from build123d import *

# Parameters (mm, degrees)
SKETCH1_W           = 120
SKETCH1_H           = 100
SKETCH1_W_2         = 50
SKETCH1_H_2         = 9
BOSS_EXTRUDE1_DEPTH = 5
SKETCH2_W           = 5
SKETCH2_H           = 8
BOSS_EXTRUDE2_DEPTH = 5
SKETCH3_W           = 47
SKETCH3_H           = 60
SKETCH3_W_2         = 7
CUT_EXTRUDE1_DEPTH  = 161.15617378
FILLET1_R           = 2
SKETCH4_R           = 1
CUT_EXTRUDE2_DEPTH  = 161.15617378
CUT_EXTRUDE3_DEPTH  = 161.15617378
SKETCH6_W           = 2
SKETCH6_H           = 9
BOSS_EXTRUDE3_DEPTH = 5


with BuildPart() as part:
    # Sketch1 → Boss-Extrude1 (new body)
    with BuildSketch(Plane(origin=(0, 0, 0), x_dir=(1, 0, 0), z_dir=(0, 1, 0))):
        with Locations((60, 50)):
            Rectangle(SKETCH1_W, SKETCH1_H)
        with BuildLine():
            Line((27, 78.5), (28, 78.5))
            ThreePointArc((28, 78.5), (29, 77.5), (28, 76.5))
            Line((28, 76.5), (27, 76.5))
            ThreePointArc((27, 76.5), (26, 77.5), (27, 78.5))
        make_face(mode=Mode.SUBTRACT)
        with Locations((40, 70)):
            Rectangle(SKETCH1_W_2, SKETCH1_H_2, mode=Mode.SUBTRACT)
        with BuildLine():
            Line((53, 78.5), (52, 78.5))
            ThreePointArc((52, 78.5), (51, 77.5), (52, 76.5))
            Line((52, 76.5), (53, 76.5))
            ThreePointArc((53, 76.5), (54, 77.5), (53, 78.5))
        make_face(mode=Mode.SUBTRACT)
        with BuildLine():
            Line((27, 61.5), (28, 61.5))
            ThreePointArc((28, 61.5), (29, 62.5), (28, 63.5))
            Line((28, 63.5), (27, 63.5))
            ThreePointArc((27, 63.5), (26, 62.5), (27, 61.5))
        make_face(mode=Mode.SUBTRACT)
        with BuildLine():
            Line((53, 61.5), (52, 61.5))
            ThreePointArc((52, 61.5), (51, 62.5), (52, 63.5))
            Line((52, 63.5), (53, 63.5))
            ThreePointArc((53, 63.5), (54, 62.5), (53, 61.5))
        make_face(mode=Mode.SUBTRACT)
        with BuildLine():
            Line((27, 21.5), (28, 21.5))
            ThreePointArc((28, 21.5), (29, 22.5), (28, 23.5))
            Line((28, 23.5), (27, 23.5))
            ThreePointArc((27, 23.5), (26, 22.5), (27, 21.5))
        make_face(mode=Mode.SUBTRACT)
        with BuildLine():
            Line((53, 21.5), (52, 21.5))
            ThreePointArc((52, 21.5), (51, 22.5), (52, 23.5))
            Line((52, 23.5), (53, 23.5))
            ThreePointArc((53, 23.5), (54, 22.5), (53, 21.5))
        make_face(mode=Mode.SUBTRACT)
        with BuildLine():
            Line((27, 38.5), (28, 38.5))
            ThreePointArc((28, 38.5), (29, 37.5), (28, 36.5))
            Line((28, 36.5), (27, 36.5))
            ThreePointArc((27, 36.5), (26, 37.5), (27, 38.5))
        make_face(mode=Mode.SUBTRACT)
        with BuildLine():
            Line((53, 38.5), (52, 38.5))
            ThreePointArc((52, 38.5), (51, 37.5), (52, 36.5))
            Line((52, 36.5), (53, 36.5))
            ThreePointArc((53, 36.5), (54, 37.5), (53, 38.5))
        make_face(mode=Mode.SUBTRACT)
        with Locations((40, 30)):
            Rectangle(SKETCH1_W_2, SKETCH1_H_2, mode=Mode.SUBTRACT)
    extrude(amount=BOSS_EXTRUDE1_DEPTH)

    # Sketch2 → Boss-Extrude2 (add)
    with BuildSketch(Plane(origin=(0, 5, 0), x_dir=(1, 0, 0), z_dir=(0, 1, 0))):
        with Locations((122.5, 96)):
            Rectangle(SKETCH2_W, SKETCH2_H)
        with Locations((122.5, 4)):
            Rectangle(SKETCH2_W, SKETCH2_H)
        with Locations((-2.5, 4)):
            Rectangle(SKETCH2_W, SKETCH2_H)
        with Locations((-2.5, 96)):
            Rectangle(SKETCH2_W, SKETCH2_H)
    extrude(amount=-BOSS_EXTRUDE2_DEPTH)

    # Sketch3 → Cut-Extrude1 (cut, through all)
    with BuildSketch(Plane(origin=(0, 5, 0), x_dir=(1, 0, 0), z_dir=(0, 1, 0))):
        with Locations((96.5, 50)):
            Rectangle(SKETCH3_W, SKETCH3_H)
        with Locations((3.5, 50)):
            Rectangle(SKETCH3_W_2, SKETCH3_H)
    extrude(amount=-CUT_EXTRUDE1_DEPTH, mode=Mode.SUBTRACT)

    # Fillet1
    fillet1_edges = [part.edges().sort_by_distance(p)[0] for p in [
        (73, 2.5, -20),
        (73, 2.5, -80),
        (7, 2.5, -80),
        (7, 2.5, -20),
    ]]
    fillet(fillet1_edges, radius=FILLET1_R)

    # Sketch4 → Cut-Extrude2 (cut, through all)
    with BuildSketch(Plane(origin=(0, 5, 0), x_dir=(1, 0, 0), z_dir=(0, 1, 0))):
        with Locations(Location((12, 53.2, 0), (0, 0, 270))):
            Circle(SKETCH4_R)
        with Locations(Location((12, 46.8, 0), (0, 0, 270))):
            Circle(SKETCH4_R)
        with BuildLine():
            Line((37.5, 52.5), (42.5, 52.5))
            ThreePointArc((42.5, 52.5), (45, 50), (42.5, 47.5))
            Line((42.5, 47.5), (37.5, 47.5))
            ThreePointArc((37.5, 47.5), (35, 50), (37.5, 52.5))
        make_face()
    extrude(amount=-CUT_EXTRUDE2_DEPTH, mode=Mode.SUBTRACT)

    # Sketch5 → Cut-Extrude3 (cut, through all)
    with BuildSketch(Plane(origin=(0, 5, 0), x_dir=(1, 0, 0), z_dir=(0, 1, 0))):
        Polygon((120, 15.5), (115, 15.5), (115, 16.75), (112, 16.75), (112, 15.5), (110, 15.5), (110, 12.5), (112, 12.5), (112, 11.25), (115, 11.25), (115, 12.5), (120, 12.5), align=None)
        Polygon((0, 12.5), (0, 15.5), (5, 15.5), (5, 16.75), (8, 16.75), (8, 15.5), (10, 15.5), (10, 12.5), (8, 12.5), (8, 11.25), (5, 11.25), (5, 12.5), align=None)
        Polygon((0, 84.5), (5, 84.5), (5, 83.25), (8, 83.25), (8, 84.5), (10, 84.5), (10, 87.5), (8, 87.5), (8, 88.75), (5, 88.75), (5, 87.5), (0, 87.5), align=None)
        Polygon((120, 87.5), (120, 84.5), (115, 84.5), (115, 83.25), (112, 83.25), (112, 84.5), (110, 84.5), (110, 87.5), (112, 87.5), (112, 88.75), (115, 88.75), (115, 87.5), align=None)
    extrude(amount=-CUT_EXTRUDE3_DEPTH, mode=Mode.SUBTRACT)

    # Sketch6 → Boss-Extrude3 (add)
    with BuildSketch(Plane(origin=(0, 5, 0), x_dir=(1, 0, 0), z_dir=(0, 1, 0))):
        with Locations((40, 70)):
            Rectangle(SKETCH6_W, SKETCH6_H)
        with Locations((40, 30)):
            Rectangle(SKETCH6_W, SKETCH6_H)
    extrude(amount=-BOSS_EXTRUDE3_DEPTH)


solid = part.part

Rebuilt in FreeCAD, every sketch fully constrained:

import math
import FreeCAD as App
import Part
import Sketcher
from FreeCAD import Vector


def edges_at(feature, points):
    """Names of the edges that pass closest to the given points."""
    edges = feature.Shape.Edges
    near = lambda p: min(range(len(edges)), key=lambda i: edges[i].distToShape(Part.Vertex(*p))[0])
    return sorted({f"Edge{near(p) + 1}" for p in points})


def add_polygon(sketch, points):
    """Adds a closed chain of lines whose ends are joined by coincident constraints."""
    first, n = sketch.GeometryCount, len(points)
    for a, b in zip(points, points[1:] + points[:1]):
        sketch.addGeometry(Part.LineSegment(App.Vector(*a, 0), App.Vector(*b, 0)), False)
    for i in range(n):
        sketch.addConstraint(Sketcher.Constraint("Coincident", first + i, 2, first + (i + 1) % n, 1))

doc = App.newDocument("Part")
params = doc.addObject("Spreadsheet::Sheet", "Params")
for row, (alias, value) in enumerate([
    ("sketch1_radius", "1 mm"),
    ("sketch1_width", "120 mm"),
    ("sketch1_width2", "1 mm"),
    ("sketch1_width3", "50 mm"),
    ("sketch1_height", "100 mm"),
    ("pad1_length", "5 mm"),
    ("sketch2_width", "5 mm"),
    ("sketch2_height", "8 mm"),
    ("pad2_length", "5 mm"),
    ("sketch3_width", "47 mm"),
    ("sketch3_width2", "7 mm"),
    ("sketch3_height", "60 mm"),
    ("fillet_radius", "2 mm"),
    ("sketch4_diameter", "2 mm"),
    ("sketch4_radius", "2.5 mm"),
    ("sketch4_width", "5 mm"),
    ("sketch5_width", "5 mm"),
    ("sketch5_width2", "3 mm"),
    ("sketch5_width3", "2 mm"),
    ("sketch5_height", "1.25 mm"),
    ("sketch6_width", "2 mm"),
    ("sketch6_height", "9 mm"),
    ("pad3_length", "5 mm"),
], start=1):
    params.set(f"A{row}", alias)
    params.set(f"B{row}", "=" + value)
    params.setAlias(f"B{row}", alias)

body = doc.addObject("PartDesign::Body", "Body")

# Sketch on XZ plane
sketch1 = doc.addObject("Sketcher::SketchObject", "Sketch")
body.addObject(sketch1)
sketch1.AttachmentSupport = (doc.XZ_Plane, [""])
sketch1.MapMode = "FlatFace"
add_polygon(sketch1, [(0, -100), (0, 0), (120, 0), (120, -100)])  # lines 0-3
sketch1.addGeometry(Part.LineSegment(Vector(28, -21.5, 0), Vector(27, -21.5, 0)), False)  # 4
sketch1.addGeometry(Part.ArcOfCircle(Part.Circle(Vector(27, -22.5, 0), Vector(0, 0, 1), 1), math.radians(90), math.radians(270)), False)  # 5
sketch1.addGeometry(Part.LineSegment(Vector(27, -23.5, 0), Vector(28, -23.5, 0)), False)  # 6
sketch1.addGeometry(Part.ArcOfCircle(Part.Circle(Vector(28, -22.5, 0), Vector(0, 0, 1), 1), math.radians(-90), math.radians(90)), False)  # 7
sketch1.addGeometry(Part.ArcOfCircle(Part.Circle(Vector(27, -37.5, 0), Vector(0, 0, 1), 1), math.radians(90), math.radians(270)), False)  # 8
sketch1.addGeometry(Part.LineSegment(Vector(27, -38.5, 0), Vector(28, -38.5, 0)), False)  # 9
sketch1.addGeometry(Part.ArcOfCircle(Part.Circle(Vector(28, -37.5, 0), Vector(0, 0, 1), 1), math.radians(-90), math.radians(90)), False)  # 10
sketch1.addGeometry(Part.LineSegment(Vector(28, -36.5, 0), Vector(27, -36.5, 0)), False)  # 11
add_polygon(sketch1, [(65, -25.5), (15, -25.5), (15, -34.5), (65, -34.5)])  # lines 12-15
sketch1.addGeometry(Part.ArcOfCircle(Part.Circle(Vector(53, -22.5, 0), Vector(0, 0, 1), 1), math.radians(-90), math.radians(90)), False)  # 16
sketch1.addGeometry(Part.LineSegment(Vector(53, -21.5, 0), Vector(52, -21.5, 0)), False)  # 17
sketch1.addGeometry(Part.ArcOfCircle(Part.Circle(Vector(52, -22.5, 0), Vector(0, 0, 1), 1), math.radians(90), math.radians(270)), False)  # 18
sketch1.addGeometry(Part.LineSegment(Vector(52, -23.5, 0), Vector(53, -23.5, 0)), False)  # 19
sketch1.addGeometry(Part.LineSegment(Vector(52, -38.5, 0), Vector(53, -38.5, 0)), False)  # 20
sketch1.addGeometry(Part.ArcOfCircle(Part.Circle(Vector(53, -37.5, 0), Vector(0, 0, 1), 1), math.radians(-90), math.radians(90)), False)  # 21
sketch1.addGeometry(Part.LineSegment(Vector(53, -36.5, 0), Vector(52, -36.5, 0)), False)  # 22
sketch1.addGeometry(Part.ArcOfCircle(Part.Circle(Vector(52, -37.5, 0), Vector(0, 0, 1), 1), math.radians(90), math.radians(270)), False)  # 23
sketch1.addGeometry(Part.LineSegment(Vector(28, -61.5, 0), Vector(27, -61.5, 0)), False)  # 24
sketch1.addGeometry(Part.ArcOfCircle(Part.Circle(Vector(27, -62.5, 0), Vector(0, 0, 1), 1), math.radians(90), math.radians(270)), False)  # 25
sketch1.addGeometry(Part.LineSegment(Vector(27, -63.5, 0), Vector(28, -63.5, 0)), False)  # 26
sketch1.addGeometry(Part.ArcOfCircle(Part.Circle(Vector(28, -62.5, 0), Vector(0, 0, 1), 1), math.radians(-90), math.radians(90)), False)  # 27
sketch1.addGeometry(Part.ArcOfCircle(Part.Circle(Vector(27, -77.5, 0), Vector(0, 0, 1), 1), math.radians(90), math.radians(270)), False)  # 28
sketch1.addGeometry(Part.LineSegment(Vector(27, -78.5, 0), Vector(28, -78.5, 0)), False)  # 29
sketch1.addGeometry(Part.ArcOfCircle(Part.Circle(Vector(28, -77.5, 0), Vector(0, 0, 1), 1), math.radians(-90), math.radians(90)), False)  # 30
sketch1.addGeometry(Part.LineSegment(Vector(28, -76.5, 0), Vector(27, -76.5, 0)), False)  # 31
sketch1.addGeometry(Part.ArcOfCircle(Part.Circle(Vector(53, -62.5, 0), Vector(0, 0, 1), 1), math.radians(-90), math.radians(90)), False)  # 32
sketch1.addGeometry(Part.LineSegment(Vector(53, -61.5, 0), Vector(52, -61.5, 0)), False)  # 33
sketch1.addGeometry(Part.ArcOfCircle(Part.Circle(Vector(52, -62.5, 0), Vector(0, 0, 1), 1), math.radians(90), math.radians(270)), False)  # 34
sketch1.addGeometry(Part.LineSegment(Vector(52, -63.5, 0), Vector(53, -63.5, 0)), False)  # 35
add_polygon(sketch1, [(65, -65.5), (15, -65.5), (15, -74.5), (65, -74.5)])  # lines 36-39
sketch1.addGeometry(Part.LineSegment(Vector(52, -78.5, 0), Vector(53, -78.5, 0)), False)  # 40
sketch1.addGeometry(Part.ArcOfCircle(Part.Circle(Vector(53, -77.5, 0), Vector(0, 0, 1), 1), math.radians(-90), math.radians(90)), False)  # 41
sketch1.addGeometry(Part.LineSegment(Vector(53, -76.5, 0), Vector(52, -76.5, 0)), False)  # 42
sketch1.addGeometry(Part.ArcOfCircle(Part.Circle(Vector(52, -77.5, 0), Vector(0, 0, 1), 1), math.radians(90), math.radians(270)), False)  # 43
sketch1.addConstraint([
    Sketcher.Constraint("Tangent", 4, 2, 5, 1),
    Sketcher.Constraint("Tangent", 5, 2, 6, 1),
    Sketcher.Constraint("Tangent", 6, 2, 7, 1),
    Sketcher.Constraint("Tangent", 7, 2, 4, 1),
    Sketcher.Constraint("Tangent", 8, 2, 9, 1),
    Sketcher.Constraint("Tangent", 9, 2, 10, 1),
    Sketcher.Constraint("Tangent", 10, 2, 11, 1),
    Sketcher.Constraint("Tangent", 11, 2, 8, 1),
    Sketcher.Constraint("Tangent", 16, 2, 17, 1),
    Sketcher.Constraint("Tangent", 17, 2, 18, 1),
    Sketcher.Constraint("Tangent", 18, 2, 19, 1),
    Sketcher.Constraint("Tangent", 19, 2, 16, 1),
    Sketcher.Constraint("Tangent", 20, 2, 21, 1),
    Sketcher.Constraint("Tangent", 21, 2, 22, 1),
    Sketcher.Constraint("Tangent", 22, 2, 23, 1),
    Sketcher.Constraint("Tangent", 23, 2, 20, 1),
    Sketcher.Constraint("Tangent", 24, 2, 25, 1),
    Sketcher.Constraint("Tangent", 25, 2, 26, 1),
    Sketcher.Constraint("Tangent", 26, 2, 27, 1),
    Sketcher.Constraint("Tangent", 27, 2, 24, 1),
    Sketcher.Constraint("Tangent", 28, 2, 29, 1),
    Sketcher.Constraint("Tangent", 29, 2, 30, 1),
    Sketcher.Constraint("Tangent", 30, 2, 31, 1),
    Sketcher.Constraint("Tangent", 31, 2, 28, 1),
    Sketcher.Constraint("Tangent", 32, 2, 33, 1),
    Sketcher.Constraint("Tangent", 33, 2, 34, 1),
    Sketcher.Constraint("Tangent", 34, 2, 35, 1),
    Sketcher.Constraint("Tangent", 35, 2, 32, 1),
    Sketcher.Constraint("Tangent", 40, 2, 41, 1),
    Sketcher.Constraint("Tangent", 41, 2, 42, 1),
    Sketcher.Constraint("Tangent", 42, 2, 43, 1),
    Sketcher.Constraint("Tangent", 43, 2, 40, 1),
    Sketcher.Constraint("Vertical", 0),
    Sketcher.Constraint("Horizontal", 1),
    Sketcher.Constraint("Vertical", 2),
    Sketcher.Constraint("Horizontal", 3),
    Sketcher.Constraint("Horizontal", 4),
    Sketcher.Constraint("Horizontal", 6),
    Sketcher.Constraint("Horizontal", 9),
    Sketcher.Constraint("Horizontal", 11),
    Sketcher.Constraint("Horizontal", 12),
    Sketcher.Constraint("Vertical", 13),
    Sketcher.Constraint("Horizontal", 14),
    Sketcher.Constraint("Vertical", 15),
    Sketcher.Constraint("Horizontal", 17),
    Sketcher.Constraint("Horizontal", 19),
    Sketcher.Constraint("Horizontal", 20),
    Sketcher.Constraint("Horizontal", 22),
    Sketcher.Constraint("Horizontal", 24),
    Sketcher.Constraint("Horizontal", 26),
    Sketcher.Constraint("Horizontal", 29),
    Sketcher.Constraint("Horizontal", 31),
    Sketcher.Constraint("Horizontal", 33),
    Sketcher.Constraint("Horizontal", 35),
    Sketcher.Constraint("Horizontal", 36),
    Sketcher.Constraint("Vertical", 37),
    Sketcher.Constraint("Horizontal", 38),
    Sketcher.Constraint("Vertical", 39),
    Sketcher.Constraint("Horizontal", 40),
    Sketcher.Constraint("Horizontal", 42),
    Sketcher.Constraint("Coincident", 0, 2, -1, 1),
    Sketcher.Constraint("Equal", 7, 8),
    Sketcher.Constraint("Equal", 10, 16),
    Sketcher.Constraint("Equal", 18, 21),
    Sketcher.Constraint("Equal", 23, 25),
    Sketcher.Constraint("Equal", 27, 28),
    Sketcher.Constraint("Equal", 30, 32),
    Sketcher.Constraint("Equal", 34, 41),
    Sketcher.Constraint("Horizontal", 7, 3, 16, 3),
    Sketcher.Constraint("Horizontal", 10, 3, 21, 3),
    Sketcher.Constraint("Horizontal", 27, 3, 32, 3),
    Sketcher.Constraint("Horizontal", 30, 3, 41, 3),
    Sketcher.Constraint("Vertical", 5, 3, 8, 3),
    Sketcher.Constraint("Vertical", 7, 3, 10, 3),
    Sketcher.Constraint("Vertical", 16, 3, 21, 3),
    Sketcher.Constraint("Vertical", 18, 3, 23, 3),
    Sketcher.Constraint("Vertical", 8, 3, 25, 3),
    Sketcher.Constraint("Vertical", 10, 3, 27, 3),
    Sketcher.Constraint("Vertical", 25, 3, 28, 3),
    Sketcher.Constraint("Vertical", 27, 3, 30, 3),
    Sketcher.Constraint("Vertical", 21, 3, 32, 3),
    Sketcher.Constraint("Vertical", 23, 3, 34, 3),
    Sketcher.Constraint("Vertical", 32, 3, 41, 3),
    Sketcher.Constraint("Vertical", 34, 3, 43, 3),
    Sketcher.Constraint("Vertical", 13, 2, 36, 2),
    Sketcher.Constraint("Vertical", 15, 2, 38, 2),
    Sketcher.Constraint("Equal", 11, 17),
    Sketcher.Constraint("Equal", 15, 37),
    Sketcher.Constraint("Radius", 5, 1.0),
    Sketcher.Constraint("DistanceX", 1, 1, 1, 2, 120.0),
    Sketcher.Constraint("DistanceX", 4, 2, 4, 1, 1.0),
    Sketcher.Constraint("DistanceX", 12, 2, 12, 1, 50.0),
    Sketcher.Constraint("DistanceY", 0, 1, 0, 2, 100.0),
    Sketcher.Constraint("DistanceY", 13, 2, 13, 1, 9.0),
    Sketcher.Constraint("DistanceX", -1, 1, 5, 3, 27.0),
    Sketcher.Constraint("DistanceX", -1, 1, 16, 3, 53.0),
    Sketcher.Constraint("DistanceX", -1, 1, 12, 2, 15.0),
    Sketcher.Constraint("DistanceY", 8, 3, 5, 3, 15.0),
    Sketcher.Constraint("DistanceY", 25, 3, 8, 3, 25.0),
    Sketcher.Constraint("DistanceY", 28, 3, 25, 3, 15.0),
    Sketcher.Constraint("DistanceY", 12, 2, 5, 2, 2.0),
    Sketcher.Constraint("DistanceY", 36, 2, 25, 2, 2.0),
    Sketcher.Constraint("DistanceY", 5, 3, -1, 1, 22.5),
])
sketch1.setExpression("Constraints[100]", "Params.sketch1_radius")
sketch1.setExpression("Constraints[101]", "Params.sketch1_width")
sketch1.setExpression("Constraints[102]", "Params.sketch1_width2")
sketch1.setExpression("Constraints[103]", "Params.sketch1_width3")
sketch1.setExpression("Constraints[104]", "Params.sketch1_height")
pad1 = doc.addObject("PartDesign::Pad", "Pad")
body.addObject(pad1)
pad1.Profile = sketch1
pad1.setExpression("Length", "Params.pad1_length")
pad1.Reversed = True

# Sketch on XZ plane
sketch2 = doc.addObject("Sketcher::SketchObject", "Sketch001")
body.addObject(sketch2)
sketch2.AttachmentSupport = (doc.XZ_Plane, [""])
sketch2.MapMode = "FlatFace"
sketch2.AttachmentOffset = App.Placement(Vector(0, 0, -5), App.Rotation())
add_polygon(sketch2, [(120, -100), (120, -92), (125, -92), (125, -100)])  # lines 0-3
add_polygon(sketch2, [(120, -8), (120, 0), (125, 0), (125, -8)])  # lines 4-7
add_polygon(sketch2, [(-5, -8), (-5, 0), (0, 0), (0, -8)])  # lines 8-11
add_polygon(sketch2, [(-5, -100), (-5, -92), (0, -92), (0, -100)])  # lines 12-15
sketch2.addConstraint([
    Sketcher.Constraint("Vertical", 0),
    Sketcher.Constraint("Horizontal", 1),
    Sketcher.Constraint("Vertical", 2),
    Sketcher.Constraint("Horizontal", 3),
    Sketcher.Constraint("Vertical", 4),
    Sketcher.Constraint("Horizontal", 5),
    Sketcher.Constraint("Vertical", 6),
    Sketcher.Constraint("Horizontal", 7),
    Sketcher.Constraint("Vertical", 8),
    Sketcher.Constraint("Horizontal", 9),
    Sketcher.Constraint("Vertical", 10),
    Sketcher.Constraint("Horizontal", 11),
    Sketcher.Constraint("Vertical", 12),
    Sketcher.Constraint("Horizontal", 13),
    Sketcher.Constraint("Vertical", 14),
    Sketcher.Constraint("Horizontal", 15),
    Sketcher.Constraint("Coincident", 9, 2, -1, 1),
    Sketcher.Constraint("PointOnObject", 4, 2, -1),
    Sketcher.Constraint("PointOnObject", 13, 2, -2),
    Sketcher.Constraint("Horizontal", 7, 2, 10, 2),
    Sketcher.Constraint("Horizontal", 1, 2, 12, 2),
    Sketcher.Constraint("Horizontal", 3, 2, 14, 2),
    Sketcher.Constraint("Vertical", 3, 2, 4, 2),
    Sketcher.Constraint("Vertical", 2, 2, 5, 2),
    Sketcher.Constraint("Vertical", 11, 2, 12, 2),
    Sketcher.Constraint("Equal", 7, 9),
    Sketcher.Constraint("Equal", 2, 4),
    Sketcher.Constraint("DistanceX", 1, 1, 1, 2, 5.0),
    Sketcher.Constraint("DistanceY", 0, 1, 0, 2, 8.0),
    Sketcher.Constraint("DistanceX", -1, 1, 0, 2, 120.0),
    Sketcher.Constraint("DistanceY", 0, 2, -1, 1, 92.0),
])
sketch2.setExpression("Constraints[43]", "Params.sketch2_width")
sketch2.setExpression("Constraints[44]", "Params.sketch2_height")
pad2 = doc.addObject("PartDesign::Pad", "Pad001")
body.addObject(pad2)
pad2.Profile = sketch2
pad2.setExpression("Length", "Params.pad2_length")

# Sketch on XZ plane
sketch3 = doc.addObject("Sketcher::SketchObject", "Sketch002")
body.addObject(sketch3)
sketch3.AttachmentSupport = (doc.XZ_Plane, [""])
sketch3.MapMode = "FlatFace"
sketch3.AttachmentOffset = App.Placement(Vector(0, 0, -5), App.Rotation())
add_polygon(sketch3, [(73, -80), (73, -20), (120, -20), (120, -80)])  # lines 0-3
add_polygon(sketch3, [(0, -80), (0, -20), (7, -20), (7, -80)])  # lines 4-7
sketch3.addConstraint([
    Sketcher.Constraint("Vertical", 0),
    Sketcher.Constraint("Horizontal", 1),
    Sketcher.Constraint("Vertical", 2),
    Sketcher.Constraint("Horizontal", 3),
    Sketcher.Constraint("Vertical", 4),
    Sketcher.Constraint("Horizontal", 5),
    Sketcher.Constraint("Vertical", 6),
    Sketcher.Constraint("Horizontal", 7),
    Sketcher.Constraint("PointOnObject", 4, 2, -2),
    Sketcher.Constraint("Horizontal", 1, 2, 4, 2),
    Sketcher.Constraint("Horizontal", 3, 2, 6, 2),
    Sketcher.Constraint("DistanceX", 1, 1, 1, 2, 47.0),
    Sketcher.Constraint("DistanceX", 5, 1, 5, 2, 7.0),
    Sketcher.Constraint("DistanceY", 0, 1, 0, 2, 60.0),
    Sketcher.Constraint("DistanceX", -1, 1, 0, 2, 73.0),
    Sketcher.Constraint("DistanceY", 0, 2, -1, 1, 20.0),
])
sketch3.setExpression("Constraints[19]", "Params.sketch3_width")
sketch3.setExpression("Constraints[20]", "Params.sketch3_width2")
sketch3.setExpression("Constraints[21]", "Params.sketch3_height")
pocket1 = doc.addObject("PartDesign::Pocket", "Pocket")
body.addObject(pocket1)
pocket1.Profile = sketch3
pocket1.Type = "ThroughAll"
pocket1.Reversed = True
doc.recompute()

fillet = doc.addObject("PartDesign::Fillet", "Fillet")
body.addObject(fillet)
fillet.Base = (pocket1, edges_at(pocket1, [
    (73, 2.5, -20),
    (73, 2.5, -80),
    (7, 2.5, -80),
    (7, 2.5, -20),
]))
fillet.setExpression("Radius", "Params.fillet_radius")

# Sketch on XZ plane
sketch4 = doc.addObject("Sketcher::SketchObject", "Sketch003")
body.addObject(sketch4)
sketch4.AttachmentSupport = (doc.XZ_Plane, [""])
sketch4.MapMode = "FlatFace"
sketch4.AttachmentOffset = App.Placement(Vector(0, 0, -5), App.Rotation())
sketch4.addGeometry([
    Part.Circle(Vector(12, -53.2, 0), Vector(0, 0, 1), 1),  # 0
    Part.Circle(Vector(12, -46.8, 0), Vector(0, 0, 1), 1),  # 1
    Part.LineSegment(Vector(42.5, -52.5, 0), Vector(37.5, -52.5, 0)),  # 2
    Part.ArcOfCircle(Part.Circle(Vector(37.5, -50, 0), Vector(0, 0, 1), 2.5), math.radians(90), math.radians(270)),  # 3
    Part.LineSegment(Vector(37.5, -47.5, 0), Vector(42.5, -47.5, 0)),  # 4
    Part.ArcOfCircle(Part.Circle(Vector(42.5, -50, 0), Vector(0, 0, 1), 2.5), math.radians(-90), math.radians(90)),  # 5
], False)
sketch4.addConstraint([
    Sketcher.Constraint("Tangent", 2, 2, 3, 2),
    Sketcher.Constraint("Tangent", 3, 1, 4, 1),
    Sketcher.Constraint("Tangent", 4, 2, 5, 2),
    Sketcher.Constraint("Tangent", 5, 1, 2, 1),
    Sketcher.Constraint("Horizontal", 2),
    Sketcher.Constraint("Horizontal", 4),
    Sketcher.Constraint("Equal", 0, 1),
    Sketcher.Constraint("Vertical", 0, 3, 1, 3),
    Sketcher.Constraint("Diameter", 0, 2.0),
    Sketcher.Constraint("Radius", 3, 2.5),
    Sketcher.Constraint("DistanceX", 2, 2, 2, 1, 5.0),
    Sketcher.Constraint("DistanceX", -1, 1, 0, 3, 12.0),
    Sketcher.Constraint("DistanceY", 3, 3, -1, 1, 50.0),
    Sketcher.Constraint("DistanceY", 0, 3, -1, 1, 53.2),
    Sketcher.Constraint("DistanceY", 1, 3, -1, 1, 46.8),
    Sketcher.Constraint("DistanceX", -1, 1, 3, 3, 37.5),
])
sketch4.setExpression("Constraints[8]", "Params.sketch4_diameter")
sketch4.setExpression("Constraints[9]", "Params.sketch4_radius")
sketch4.setExpression("Constraints[10]", "Params.sketch4_width")
pocket2 = doc.addObject("PartDesign::Pocket", "Pocket001")
body.addObject(pocket2)
pocket2.Profile = sketch4
pocket2.Type = "ThroughAll"
pocket2.Reversed = True

# Sketch on XZ plane
sketch5 = doc.addObject("Sketcher::SketchObject", "Sketch004")
body.addObject(sketch5)
sketch5.AttachmentSupport = (doc.XZ_Plane, [""])
sketch5.MapMode = "FlatFace"
sketch5.AttachmentOffset = App.Placement(Vector(0, 0, -5), App.Rotation())
add_polygon(sketch5, [(120, -15.5), (115, -15.5), (115, -16.8), (112, -16.8), (112, -15.5), (110, -15.5), (110, -12.5), (112, -12.5), (112, -11.2), (115, -11.2), (115, -12.5), (120, -12.5)])  # lines 0-11
add_polygon(sketch5, [(0, -15.5), (0, -12.5), (5, -12.5), (5, -11.2), (8, -11.2), (8, -12.5), (10, -12.5), (10, -15.5), (8, -15.5), (8, -16.8), (5, -16.8), (5, -15.5)])  # lines 12-23
add_polygon(sketch5, [(0, -84.5), (5, -84.5), (5, -83.2), (8, -83.2), (8, -84.5), (10, -84.5), (10, -87.5), (8, -87.5), (8, -88.8), (5, -88.8), (5, -87.5), (0, -87.5)])  # lines 24-35
add_polygon(sketch5, [(120, -84.5), (120, -87.5), (115, -87.5), (115, -88.8), (112, -88.8), (112, -87.5), (110, -87.5), (110, -84.5), (112, -84.5), (112, -83.2), (115, -83.2), (115, -84.5)])  # lines 36-47
sketch5.addConstraint([
    Sketcher.Constraint("Horizontal", 0),
    Sketcher.Constraint("Vertical", 1),
    Sketcher.Constraint("Horizontal", 2),
    Sketcher.Constraint("Vertical", 3),
    Sketcher.Constraint("Horizontal", 4),
    Sketcher.Constraint("Vertical", 5),
    Sketcher.Constraint("Horizontal", 6),
    Sketcher.Constraint("Vertical", 7),
    Sketcher.Constraint("Horizontal", 8),
    Sketcher.Constraint("Vertical", 9),
    Sketcher.Constraint("Horizontal", 10),
    Sketcher.Constraint("Vertical", 11),
    Sketcher.Constraint("Vertical", 12),
    Sketcher.Constraint("Horizontal", 13),
    Sketcher.Constraint("Vertical", 14),
    Sketcher.Constraint("Horizontal", 15),
    Sketcher.Constraint("Vertical", 16),
    Sketcher.Constraint("Horizontal", 17),
    Sketcher.Constraint("Vertical", 18),
    Sketcher.Constraint("Horizontal", 19),
    Sketcher.Constraint("Vertical", 20),
    Sketcher.Constraint("Horizontal", 21),
    Sketcher.Constraint("Vertical", 22),
    Sketcher.Constraint("Horizontal", 23),
    Sketcher.Constraint("Horizontal", 24),
    Sketcher.Constraint("Vertical", 25),
    Sketcher.Constraint("Horizontal", 26),
    Sketcher.Constraint("Vertical", 27),
    Sketcher.Constraint("Horizontal", 28),
    Sketcher.Constraint("Vertical", 29),
    Sketcher.Constraint("Horizontal", 30),
    Sketcher.Constraint("Vertical", 31),
    Sketcher.Constraint("Horizontal", 32),
    Sketcher.Constraint("Vertical", 33),
    Sketcher.Constraint("Horizontal", 34),
    Sketcher.Constraint("Vertical", 35),
    Sketcher.Constraint("Vertical", 36),
    Sketcher.Constraint("Horizontal", 37),
    Sketcher.Constraint("Vertical", 38),
    Sketcher.Constraint("Horizontal", 39),
    Sketcher.Constraint("Vertical", 40),
    Sketcher.Constraint("Horizontal", 41),
    Sketcher.Constraint("Vertical", 42),
    Sketcher.Constraint("Horizontal", 43),
    Sketcher.Constraint("Vertical", 44),
    Sketcher.Constraint("Horizontal", 45),
    Sketcher.Constraint("Vertical", 46),
    Sketcher.Constraint("Horizontal", 47),
    Sketcher.Constraint("PointOnObject", 12, 2, -2),
    Sketcher.Constraint("PointOnObject", 34, 2, -2),
    Sketcher.Constraint("Horizontal", 0, 2, 3, 2),
    Sketcher.Constraint("Horizontal", 6, 2, 9, 2),
    Sketcher.Constraint("Horizontal", 10, 2, 12, 2),
    Sketcher.Constraint("Horizontal", 8, 2, 14, 2),
    Sketcher.Constraint("Horizontal", 13, 2, 16, 2),
    Sketcher.Constraint("Horizontal", 11, 2, 18, 2),
    Sketcher.Constraint("Horizontal", 2, 2, 20, 2),
    Sketcher.Constraint("Horizontal", 19, 2, 22, 2),
    Sketcher.Constraint("Horizontal", 24, 2, 27, 2),
    Sketcher.Constraint("Horizontal", 30, 2, 33, 2),
    Sketcher.Constraint("Horizontal", 34, 2, 36, 2),
    Sketcher.Constraint("Horizontal", 32, 2, 38, 2),
    Sketcher.Constraint("Horizontal", 37, 2, 40, 2),
    Sketcher.Constraint("Horizontal", 35, 2, 42, 2),
    Sketcher.Constraint("Horizontal", 26, 2, 44, 2),
    Sketcher.Constraint("Horizontal", 43, 2, 46, 2),
    Sketcher.Constraint("Vertical", 3, 2, 6, 2),
    Sketcher.Constraint("Vertical", 1, 2, 8, 2),
    Sketcher.Constraint("Vertical", 16, 2, 19, 2),
    Sketcher.Constraint("Vertical", 14, 2, 21, 2),
    Sketcher.Constraint("Vertical", 22, 2, 24, 2),
    Sketcher.Constraint("Vertical", 20, 2, 26, 2),
    Sketcher.Constraint("Vertical", 18, 2, 28, 2),
    Sketcher.Constraint("Vertical", 27, 2, 30, 2),
    Sketcher.Constraint("Vertical", 25, 2, 32, 2),
    Sketcher.Constraint("Vertical", 11, 2, 36, 2),
    Sketcher.Constraint("Vertical", 9, 2, 37, 2),
    Sketcher.Constraint("Vertical", 7, 2, 39, 2),
    Sketcher.Constraint("Vertical", 5, 2, 41, 2),
    Sketcher.Constraint("Vertical", 40, 2, 43, 2),
    Sketcher.Constraint("Vertical", 38, 2, 45, 2),
    Sketcher.Constraint("Equal", 10, 13),
    Sketcher.Constraint("Equal", 8, 15),
    Sketcher.Constraint("Equal", 6, 17),
    Sketcher.Constraint("Equal", 45, 5),
    Sketcher.Constraint("Equal", 3, 7),
    Sketcher.Constraint("Equal", 22, 25),
    Sketcher.Constraint("Equal", 18, 29),
    Sketcher.Constraint("Equal", 27, 31),
    Sketcher.Constraint("DistanceX", 0, 2, 0, 1, 5.0),
    Sketcher.Constraint("DistanceX", 2, 2, 2, 1, 3.0),
    Sketcher.Constraint("DistanceX", 4, 2, 4, 1, 2.0),
    Sketcher.Constraint("DistanceX", -1, 1, 0, 2, 115.0),
    Sketcher.Constraint("DistanceY", 24, 2, 22, 2, 69.0),
    Sketcher.Constraint("DistanceY", 1, 2, 1, 1, 1.25),
    Sketcher.Constraint("DistanceY", 0, 2, -1, 1, 15.5),
])
sketch5.setExpression("Constraints[137]", "Params.sketch5_width")
sketch5.setExpression("Constraints[138]", "Params.sketch5_width2")
sketch5.setExpression("Constraints[139]", "Params.sketch5_width3")
sketch5.setExpression("Constraints[142]", "Params.sketch5_height")
pocket3 = doc.addObject("PartDesign::Pocket", "Pocket002")
body.addObject(pocket3)
pocket3.Profile = sketch5
pocket3.Type = "ThroughAll"
pocket3.Reversed = True

# Sketch on XZ plane
sketch6 = doc.addObject("Sketcher::SketchObject", "Sketch005")
body.addObject(sketch6)
sketch6.AttachmentSupport = (doc.XZ_Plane, [""])
sketch6.MapMode = "FlatFace"
sketch6.AttachmentOffset = App.Placement(Vector(0, 0, -5), App.Rotation())
add_polygon(sketch6, [(39, -74.5), (39, -65.5), (41, -65.5), (41, -74.5)])  # lines 0-3
add_polygon(sketch6, [(39, -34.5), (39, -25.5), (41, -25.5), (41, -34.5)])  # lines 4-7
sketch6.addConstraint([
    Sketcher.Constraint("Vertical", 0),
    Sketcher.Constraint("Horizontal", 1),
    Sketcher.Constraint("Vertical", 2),
    Sketcher.Constraint("Horizontal", 3),
    Sketcher.Constraint("Vertical", 4),
    Sketcher.Constraint("Horizontal", 5),
    Sketcher.Constraint("Vertical", 6),
    Sketcher.Constraint("Horizontal", 7),
    Sketcher.Constraint("Vertical", 3, 2, 4, 2),
    Sketcher.Constraint("Vertical", 2, 2, 5, 2),
    Sketcher.Constraint("Equal", 2, 4),
    Sketcher.Constraint("DistanceX", 1, 1, 1, 2, 2.0),
    Sketcher.Constraint("DistanceY", 0, 1, 0, 2, 9.0),
    Sketcher.Constraint("DistanceX", -1, 1, 0, 2, 39.0),
    Sketcher.Constraint("DistanceY", 0, 2, 4, 2, 40.0),
    Sketcher.Constraint("DistanceY", 0, 2, -1, 1, 65.5),
])
sketch6.setExpression("Constraints[19]", "Params.sketch6_width")
sketch6.setExpression("Constraints[20]", "Params.sketch6_height")
pad3 = doc.addObject("PartDesign::Pad", "Pad002")
body.addObject(pad3)
pad3.Profile = sketch6
pad3.setExpression("Length", "Params.pad3_length")

doc.recompute()
